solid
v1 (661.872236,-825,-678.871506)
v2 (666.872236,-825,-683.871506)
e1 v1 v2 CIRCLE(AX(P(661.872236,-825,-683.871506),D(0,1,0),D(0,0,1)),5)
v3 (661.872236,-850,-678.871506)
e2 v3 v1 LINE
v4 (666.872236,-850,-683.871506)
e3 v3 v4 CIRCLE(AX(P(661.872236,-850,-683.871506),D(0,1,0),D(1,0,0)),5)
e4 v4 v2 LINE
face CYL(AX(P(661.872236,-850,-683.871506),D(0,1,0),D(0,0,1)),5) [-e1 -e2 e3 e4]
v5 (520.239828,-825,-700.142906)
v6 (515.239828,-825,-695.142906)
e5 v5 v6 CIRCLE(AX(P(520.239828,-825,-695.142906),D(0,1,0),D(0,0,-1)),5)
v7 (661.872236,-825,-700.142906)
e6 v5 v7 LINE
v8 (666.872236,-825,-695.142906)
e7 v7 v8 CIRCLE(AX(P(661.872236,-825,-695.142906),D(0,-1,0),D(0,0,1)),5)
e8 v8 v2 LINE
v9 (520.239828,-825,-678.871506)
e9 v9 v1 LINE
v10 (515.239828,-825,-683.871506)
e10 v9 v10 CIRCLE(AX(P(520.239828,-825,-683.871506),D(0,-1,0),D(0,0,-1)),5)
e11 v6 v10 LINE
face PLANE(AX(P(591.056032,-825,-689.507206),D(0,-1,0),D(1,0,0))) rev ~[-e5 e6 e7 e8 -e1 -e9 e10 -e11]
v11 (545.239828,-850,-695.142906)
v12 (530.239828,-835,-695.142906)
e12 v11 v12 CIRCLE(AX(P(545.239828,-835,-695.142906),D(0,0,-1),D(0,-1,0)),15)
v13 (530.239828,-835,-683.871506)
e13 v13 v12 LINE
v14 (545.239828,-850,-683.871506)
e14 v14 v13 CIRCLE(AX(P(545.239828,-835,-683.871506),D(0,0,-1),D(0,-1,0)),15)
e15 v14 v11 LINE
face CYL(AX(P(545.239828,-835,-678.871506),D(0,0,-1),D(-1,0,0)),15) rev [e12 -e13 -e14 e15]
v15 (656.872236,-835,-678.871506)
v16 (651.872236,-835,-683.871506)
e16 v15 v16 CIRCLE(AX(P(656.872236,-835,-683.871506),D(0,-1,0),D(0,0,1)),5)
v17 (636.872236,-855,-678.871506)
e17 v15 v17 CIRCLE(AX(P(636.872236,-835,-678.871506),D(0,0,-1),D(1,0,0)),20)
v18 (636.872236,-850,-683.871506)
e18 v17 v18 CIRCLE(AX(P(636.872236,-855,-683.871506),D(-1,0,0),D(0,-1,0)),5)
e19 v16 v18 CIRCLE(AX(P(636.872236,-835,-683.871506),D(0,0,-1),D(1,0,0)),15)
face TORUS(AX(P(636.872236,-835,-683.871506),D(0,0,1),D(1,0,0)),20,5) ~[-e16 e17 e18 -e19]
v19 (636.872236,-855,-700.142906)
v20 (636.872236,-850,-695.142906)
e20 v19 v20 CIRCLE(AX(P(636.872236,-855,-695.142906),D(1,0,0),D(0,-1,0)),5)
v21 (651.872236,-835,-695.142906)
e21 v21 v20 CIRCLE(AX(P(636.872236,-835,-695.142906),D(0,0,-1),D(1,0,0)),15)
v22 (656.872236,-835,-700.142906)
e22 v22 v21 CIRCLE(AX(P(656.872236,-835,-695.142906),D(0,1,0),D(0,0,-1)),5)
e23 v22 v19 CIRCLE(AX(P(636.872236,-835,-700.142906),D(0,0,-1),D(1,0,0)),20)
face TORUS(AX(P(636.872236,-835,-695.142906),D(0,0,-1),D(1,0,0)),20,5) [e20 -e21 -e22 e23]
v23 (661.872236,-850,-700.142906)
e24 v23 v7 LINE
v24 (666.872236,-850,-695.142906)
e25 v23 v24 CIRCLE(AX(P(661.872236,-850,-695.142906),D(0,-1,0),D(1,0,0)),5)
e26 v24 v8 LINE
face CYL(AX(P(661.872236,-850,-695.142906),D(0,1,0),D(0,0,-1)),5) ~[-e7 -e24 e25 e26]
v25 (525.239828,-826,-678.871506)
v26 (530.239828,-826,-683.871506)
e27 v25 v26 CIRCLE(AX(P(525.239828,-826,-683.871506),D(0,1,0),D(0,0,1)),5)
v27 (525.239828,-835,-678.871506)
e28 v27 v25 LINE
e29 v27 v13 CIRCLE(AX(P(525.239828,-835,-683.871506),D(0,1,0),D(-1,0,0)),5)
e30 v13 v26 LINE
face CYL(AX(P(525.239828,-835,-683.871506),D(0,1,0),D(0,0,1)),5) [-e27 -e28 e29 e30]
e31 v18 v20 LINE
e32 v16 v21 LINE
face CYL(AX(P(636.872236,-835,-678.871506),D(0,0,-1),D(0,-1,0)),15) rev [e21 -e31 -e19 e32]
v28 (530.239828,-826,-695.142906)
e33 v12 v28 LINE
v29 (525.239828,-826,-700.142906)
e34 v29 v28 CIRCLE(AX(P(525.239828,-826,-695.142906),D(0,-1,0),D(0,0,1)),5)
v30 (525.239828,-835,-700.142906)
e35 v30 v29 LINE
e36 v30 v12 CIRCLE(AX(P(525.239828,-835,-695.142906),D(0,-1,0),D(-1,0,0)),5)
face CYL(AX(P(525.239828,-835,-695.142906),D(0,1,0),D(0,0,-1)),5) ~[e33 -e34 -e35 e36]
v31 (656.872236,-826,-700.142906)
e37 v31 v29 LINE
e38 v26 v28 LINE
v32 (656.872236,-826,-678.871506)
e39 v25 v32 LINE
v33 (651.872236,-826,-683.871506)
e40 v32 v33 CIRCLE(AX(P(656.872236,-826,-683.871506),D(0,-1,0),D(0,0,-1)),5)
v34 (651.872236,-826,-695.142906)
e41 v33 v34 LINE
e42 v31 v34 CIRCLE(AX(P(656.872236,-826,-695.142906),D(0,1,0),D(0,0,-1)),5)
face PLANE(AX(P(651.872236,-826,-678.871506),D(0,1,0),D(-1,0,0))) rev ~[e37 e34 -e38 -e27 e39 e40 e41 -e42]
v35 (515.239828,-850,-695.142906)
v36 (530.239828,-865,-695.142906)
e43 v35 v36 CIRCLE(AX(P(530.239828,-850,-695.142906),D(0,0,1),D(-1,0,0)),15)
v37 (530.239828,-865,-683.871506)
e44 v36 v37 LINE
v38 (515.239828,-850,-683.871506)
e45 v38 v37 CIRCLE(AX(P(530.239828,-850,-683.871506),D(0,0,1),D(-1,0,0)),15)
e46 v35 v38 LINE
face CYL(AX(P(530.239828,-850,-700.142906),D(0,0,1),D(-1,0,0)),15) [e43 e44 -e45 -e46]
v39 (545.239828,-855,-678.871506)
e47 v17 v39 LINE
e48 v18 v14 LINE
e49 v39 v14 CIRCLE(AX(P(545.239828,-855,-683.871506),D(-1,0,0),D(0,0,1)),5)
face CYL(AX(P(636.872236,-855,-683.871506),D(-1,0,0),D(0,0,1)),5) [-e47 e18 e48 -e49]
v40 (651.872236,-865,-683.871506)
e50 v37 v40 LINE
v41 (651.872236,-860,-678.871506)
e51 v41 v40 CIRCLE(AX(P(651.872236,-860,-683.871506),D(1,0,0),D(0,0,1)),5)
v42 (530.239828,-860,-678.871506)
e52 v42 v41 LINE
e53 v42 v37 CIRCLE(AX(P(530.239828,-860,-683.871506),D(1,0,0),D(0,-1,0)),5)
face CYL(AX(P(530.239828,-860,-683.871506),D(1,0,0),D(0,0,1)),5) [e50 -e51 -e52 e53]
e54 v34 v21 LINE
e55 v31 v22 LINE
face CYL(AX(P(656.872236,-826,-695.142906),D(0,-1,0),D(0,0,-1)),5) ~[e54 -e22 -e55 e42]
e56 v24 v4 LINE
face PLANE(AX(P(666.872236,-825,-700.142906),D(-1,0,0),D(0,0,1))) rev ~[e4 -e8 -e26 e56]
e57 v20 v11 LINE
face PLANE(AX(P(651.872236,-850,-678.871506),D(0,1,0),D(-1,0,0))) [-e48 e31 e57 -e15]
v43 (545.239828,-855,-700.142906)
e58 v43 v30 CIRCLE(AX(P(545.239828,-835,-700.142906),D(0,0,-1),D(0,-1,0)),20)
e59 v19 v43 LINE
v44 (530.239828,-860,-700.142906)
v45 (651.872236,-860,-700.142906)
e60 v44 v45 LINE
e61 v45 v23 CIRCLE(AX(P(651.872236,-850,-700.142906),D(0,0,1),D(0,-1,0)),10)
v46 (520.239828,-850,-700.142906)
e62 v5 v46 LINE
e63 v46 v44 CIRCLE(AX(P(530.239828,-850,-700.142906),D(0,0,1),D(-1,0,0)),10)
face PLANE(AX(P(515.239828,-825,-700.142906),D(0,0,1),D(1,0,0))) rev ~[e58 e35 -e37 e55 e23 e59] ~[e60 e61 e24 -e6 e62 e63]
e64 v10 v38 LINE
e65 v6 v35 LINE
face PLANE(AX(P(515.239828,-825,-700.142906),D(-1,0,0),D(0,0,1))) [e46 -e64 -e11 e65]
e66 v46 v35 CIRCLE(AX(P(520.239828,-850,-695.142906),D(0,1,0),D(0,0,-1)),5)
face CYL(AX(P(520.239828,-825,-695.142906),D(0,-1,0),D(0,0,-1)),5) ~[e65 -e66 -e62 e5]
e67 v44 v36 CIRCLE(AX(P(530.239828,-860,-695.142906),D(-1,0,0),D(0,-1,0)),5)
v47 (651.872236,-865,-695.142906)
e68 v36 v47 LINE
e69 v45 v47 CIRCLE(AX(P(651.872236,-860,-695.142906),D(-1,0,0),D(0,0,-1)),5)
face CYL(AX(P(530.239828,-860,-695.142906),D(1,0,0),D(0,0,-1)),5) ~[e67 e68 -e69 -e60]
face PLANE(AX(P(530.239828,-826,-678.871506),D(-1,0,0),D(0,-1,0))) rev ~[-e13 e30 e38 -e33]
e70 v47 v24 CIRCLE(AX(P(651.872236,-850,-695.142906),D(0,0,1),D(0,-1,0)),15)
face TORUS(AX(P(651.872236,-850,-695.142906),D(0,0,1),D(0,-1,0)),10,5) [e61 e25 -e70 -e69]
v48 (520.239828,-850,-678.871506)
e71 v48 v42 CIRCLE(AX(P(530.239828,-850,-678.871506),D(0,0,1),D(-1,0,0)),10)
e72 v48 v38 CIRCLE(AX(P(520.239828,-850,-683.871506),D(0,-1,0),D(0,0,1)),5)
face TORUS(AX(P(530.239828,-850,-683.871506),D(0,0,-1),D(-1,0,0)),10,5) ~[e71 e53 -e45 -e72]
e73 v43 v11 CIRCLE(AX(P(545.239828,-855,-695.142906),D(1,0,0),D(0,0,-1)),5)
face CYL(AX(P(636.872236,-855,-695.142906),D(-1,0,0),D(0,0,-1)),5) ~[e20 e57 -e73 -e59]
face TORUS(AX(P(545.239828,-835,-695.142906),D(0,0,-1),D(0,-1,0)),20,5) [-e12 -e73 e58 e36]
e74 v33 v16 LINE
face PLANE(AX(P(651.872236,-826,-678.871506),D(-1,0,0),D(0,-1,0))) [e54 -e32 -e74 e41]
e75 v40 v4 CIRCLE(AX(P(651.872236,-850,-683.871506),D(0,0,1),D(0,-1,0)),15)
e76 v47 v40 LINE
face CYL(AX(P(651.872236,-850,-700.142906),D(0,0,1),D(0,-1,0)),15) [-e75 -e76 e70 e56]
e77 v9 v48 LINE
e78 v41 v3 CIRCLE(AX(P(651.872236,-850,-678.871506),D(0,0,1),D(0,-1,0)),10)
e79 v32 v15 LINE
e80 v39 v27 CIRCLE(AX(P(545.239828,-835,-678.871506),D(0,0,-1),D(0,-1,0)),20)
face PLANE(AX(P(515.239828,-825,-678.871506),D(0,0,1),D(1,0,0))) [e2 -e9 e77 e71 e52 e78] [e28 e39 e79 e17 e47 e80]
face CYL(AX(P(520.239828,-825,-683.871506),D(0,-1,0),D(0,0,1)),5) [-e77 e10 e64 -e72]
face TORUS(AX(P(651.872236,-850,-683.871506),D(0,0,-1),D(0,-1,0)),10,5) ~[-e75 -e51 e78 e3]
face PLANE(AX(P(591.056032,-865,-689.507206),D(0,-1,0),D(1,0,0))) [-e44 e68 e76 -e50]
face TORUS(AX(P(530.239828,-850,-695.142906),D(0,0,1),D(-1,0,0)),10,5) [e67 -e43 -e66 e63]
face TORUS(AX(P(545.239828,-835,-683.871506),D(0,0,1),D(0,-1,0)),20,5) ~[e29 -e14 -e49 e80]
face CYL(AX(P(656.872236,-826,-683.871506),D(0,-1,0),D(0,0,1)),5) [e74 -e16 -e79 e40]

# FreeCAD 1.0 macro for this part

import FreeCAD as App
import Part
import Sketcher

V = App.Vector
Q = App.Units.Quantity


def edges_at(feature, points):
    """Names of the edges that pass closest to the given points."""
    edges = feature.Shape.Edges
    near = lambda p: min(range(len(edges)), key=lambda i: edges[i].distToShape(Part.Vertex(*p))[0])
    return sorted({f"Edge{near(p) + 1}" for p in points})


def add_polygon(sketch, points):
    """Adds a closed chain of lines whose ends are joined by coincident constraints."""
    first, n = sketch.GeometryCount, len(points)
    for a, b in zip(points, points[1:] + points[:1]):
        sketch.addGeometry(Part.LineSegment(App.Vector(*a, 0), App.Vector(*b, 0)), False)
    for i in range(n):
        sketch.addConstraint(Sketcher.Constraint("Coincident", first + i, 2, first + (i + 1) % n, 1))

doc = App.newDocument("Part")
body = doc.addObject("PartDesign::Body", "Body")

# Sketch on XZ plane
sketch1 = body.newObject("Sketcher::SketchObject", "Sketch")
sketch1.AttachmentSupport = (doc.getObject("XZ_Plane"), [""])
sketch1.MapMode = "FlatFace"
sketch1.AttachmentOffset = App.Placement(V(0, 0, 825), App.Rotation())
add_polygon(sketch1, [(515.239828, -678.871506), (515.239828, -700.142906), (666.872236, -700.142906), (666.872236, -678.871506)])  # lines 0-3
sketch1.addConstraint(Sketcher.Constraint("Vertical", 0))
sketch1.addConstraint(Sketcher.Constraint("Horizontal", 1))
sketch1.addConstraint(Sketcher.Constraint("Vertical", 2))
sketch1.addConstraint(Sketcher.Constraint("Horizontal", 3))
sketch1.addConstraint(Sketcher.Constraint("DistanceY", 0, 2, 0, 1, Q("21.2714 mm")))
sketch1.addConstraint(Sketcher.Constraint("DistanceX", 1, 1, 1, 2, Q("151.632409 mm")))
sketch1.addConstraint(Sketcher.Constraint("DistanceX", -1, 1, 0, 2, Q("515.239828 mm")))
sketch1.addConstraint(Sketcher.Constraint("DistanceY", 0, 2, -1, 1, Q("700.142906 mm")))
pad1 = body.newObject("PartDesign::Pad", "Pad")
pad1.Profile = sketch1
pad1.Length = 40

# Sketch on XY plane
sketch2 = body.newObject("Sketcher::SketchObject", "Sketch001")
sketch2.AttachmentSupport = (doc.getObject("XY_Plane"), [""])
sketch2.MapMode = "FlatFace"
sketch2.AttachmentOffset = App.Placement(V(0, 0, -678.871506), App.Rotation())
add_polygon(sketch2, [(651.872236, -850), (651.872236, -826), (530.239828, -826), (530.239828, -850)])  # lines 0-3
sketch2.addConstraint(Sketcher.Constraint("Vertical", 0))
sketch2.addConstraint(Sketcher.Constraint("Horizontal", 1))
sketch2.addConstraint(Sketcher.Constraint("Vertical", 2))
sketch2.addConstraint(Sketcher.Constraint("Horizontal", 3))
sketch2.addConstraint(Sketcher.Constraint("DistanceY", 0, 1, 0, 2, Q("24 mm")))
sketch2.addConstraint(Sketcher.Constraint("DistanceY", 0, 2, -1, 1, Q("826 mm")))
sketch2.addConstraint(Sketcher.Constraint("DistanceX", 1, 2, 1, 1, Q("121.632409 mm")))
sketch2.addConstraint(Sketcher.Constraint("DistanceX", -1, 1, 0, 2, Q("651.872236 mm")))
pocket1 = body.newObject("PartDesign::Pocket", "Pocket")
pocket1.Profile = sketch2
pocket1.Type = "ThroughAll"
doc.recompute()

fillet = body.newObject("PartDesign::Fillet", "Fillet")
fillet.Base = (pocket1, edges_at(pocket1, [
    (515.24, -865, -689.507),
    (666.872, -865, -689.507),
    (651.872, -850, -689.507),
    (530.24, -850, -689.507),
]))
fillet.Radius = 15
doc.recompute()

fillet2 = body.newObject("PartDesign::Fillet", "Fillet001")
fillet2.Base = (fillet, edges_at(fillet, [
    (591.056, -850, -678.872),
    (591.056, -850, -700.143),
    (591.056, -865, -678.872),
    (591.056, -865, -700.143),
]))
fillet2.Radius = 5

doc.recompute()
